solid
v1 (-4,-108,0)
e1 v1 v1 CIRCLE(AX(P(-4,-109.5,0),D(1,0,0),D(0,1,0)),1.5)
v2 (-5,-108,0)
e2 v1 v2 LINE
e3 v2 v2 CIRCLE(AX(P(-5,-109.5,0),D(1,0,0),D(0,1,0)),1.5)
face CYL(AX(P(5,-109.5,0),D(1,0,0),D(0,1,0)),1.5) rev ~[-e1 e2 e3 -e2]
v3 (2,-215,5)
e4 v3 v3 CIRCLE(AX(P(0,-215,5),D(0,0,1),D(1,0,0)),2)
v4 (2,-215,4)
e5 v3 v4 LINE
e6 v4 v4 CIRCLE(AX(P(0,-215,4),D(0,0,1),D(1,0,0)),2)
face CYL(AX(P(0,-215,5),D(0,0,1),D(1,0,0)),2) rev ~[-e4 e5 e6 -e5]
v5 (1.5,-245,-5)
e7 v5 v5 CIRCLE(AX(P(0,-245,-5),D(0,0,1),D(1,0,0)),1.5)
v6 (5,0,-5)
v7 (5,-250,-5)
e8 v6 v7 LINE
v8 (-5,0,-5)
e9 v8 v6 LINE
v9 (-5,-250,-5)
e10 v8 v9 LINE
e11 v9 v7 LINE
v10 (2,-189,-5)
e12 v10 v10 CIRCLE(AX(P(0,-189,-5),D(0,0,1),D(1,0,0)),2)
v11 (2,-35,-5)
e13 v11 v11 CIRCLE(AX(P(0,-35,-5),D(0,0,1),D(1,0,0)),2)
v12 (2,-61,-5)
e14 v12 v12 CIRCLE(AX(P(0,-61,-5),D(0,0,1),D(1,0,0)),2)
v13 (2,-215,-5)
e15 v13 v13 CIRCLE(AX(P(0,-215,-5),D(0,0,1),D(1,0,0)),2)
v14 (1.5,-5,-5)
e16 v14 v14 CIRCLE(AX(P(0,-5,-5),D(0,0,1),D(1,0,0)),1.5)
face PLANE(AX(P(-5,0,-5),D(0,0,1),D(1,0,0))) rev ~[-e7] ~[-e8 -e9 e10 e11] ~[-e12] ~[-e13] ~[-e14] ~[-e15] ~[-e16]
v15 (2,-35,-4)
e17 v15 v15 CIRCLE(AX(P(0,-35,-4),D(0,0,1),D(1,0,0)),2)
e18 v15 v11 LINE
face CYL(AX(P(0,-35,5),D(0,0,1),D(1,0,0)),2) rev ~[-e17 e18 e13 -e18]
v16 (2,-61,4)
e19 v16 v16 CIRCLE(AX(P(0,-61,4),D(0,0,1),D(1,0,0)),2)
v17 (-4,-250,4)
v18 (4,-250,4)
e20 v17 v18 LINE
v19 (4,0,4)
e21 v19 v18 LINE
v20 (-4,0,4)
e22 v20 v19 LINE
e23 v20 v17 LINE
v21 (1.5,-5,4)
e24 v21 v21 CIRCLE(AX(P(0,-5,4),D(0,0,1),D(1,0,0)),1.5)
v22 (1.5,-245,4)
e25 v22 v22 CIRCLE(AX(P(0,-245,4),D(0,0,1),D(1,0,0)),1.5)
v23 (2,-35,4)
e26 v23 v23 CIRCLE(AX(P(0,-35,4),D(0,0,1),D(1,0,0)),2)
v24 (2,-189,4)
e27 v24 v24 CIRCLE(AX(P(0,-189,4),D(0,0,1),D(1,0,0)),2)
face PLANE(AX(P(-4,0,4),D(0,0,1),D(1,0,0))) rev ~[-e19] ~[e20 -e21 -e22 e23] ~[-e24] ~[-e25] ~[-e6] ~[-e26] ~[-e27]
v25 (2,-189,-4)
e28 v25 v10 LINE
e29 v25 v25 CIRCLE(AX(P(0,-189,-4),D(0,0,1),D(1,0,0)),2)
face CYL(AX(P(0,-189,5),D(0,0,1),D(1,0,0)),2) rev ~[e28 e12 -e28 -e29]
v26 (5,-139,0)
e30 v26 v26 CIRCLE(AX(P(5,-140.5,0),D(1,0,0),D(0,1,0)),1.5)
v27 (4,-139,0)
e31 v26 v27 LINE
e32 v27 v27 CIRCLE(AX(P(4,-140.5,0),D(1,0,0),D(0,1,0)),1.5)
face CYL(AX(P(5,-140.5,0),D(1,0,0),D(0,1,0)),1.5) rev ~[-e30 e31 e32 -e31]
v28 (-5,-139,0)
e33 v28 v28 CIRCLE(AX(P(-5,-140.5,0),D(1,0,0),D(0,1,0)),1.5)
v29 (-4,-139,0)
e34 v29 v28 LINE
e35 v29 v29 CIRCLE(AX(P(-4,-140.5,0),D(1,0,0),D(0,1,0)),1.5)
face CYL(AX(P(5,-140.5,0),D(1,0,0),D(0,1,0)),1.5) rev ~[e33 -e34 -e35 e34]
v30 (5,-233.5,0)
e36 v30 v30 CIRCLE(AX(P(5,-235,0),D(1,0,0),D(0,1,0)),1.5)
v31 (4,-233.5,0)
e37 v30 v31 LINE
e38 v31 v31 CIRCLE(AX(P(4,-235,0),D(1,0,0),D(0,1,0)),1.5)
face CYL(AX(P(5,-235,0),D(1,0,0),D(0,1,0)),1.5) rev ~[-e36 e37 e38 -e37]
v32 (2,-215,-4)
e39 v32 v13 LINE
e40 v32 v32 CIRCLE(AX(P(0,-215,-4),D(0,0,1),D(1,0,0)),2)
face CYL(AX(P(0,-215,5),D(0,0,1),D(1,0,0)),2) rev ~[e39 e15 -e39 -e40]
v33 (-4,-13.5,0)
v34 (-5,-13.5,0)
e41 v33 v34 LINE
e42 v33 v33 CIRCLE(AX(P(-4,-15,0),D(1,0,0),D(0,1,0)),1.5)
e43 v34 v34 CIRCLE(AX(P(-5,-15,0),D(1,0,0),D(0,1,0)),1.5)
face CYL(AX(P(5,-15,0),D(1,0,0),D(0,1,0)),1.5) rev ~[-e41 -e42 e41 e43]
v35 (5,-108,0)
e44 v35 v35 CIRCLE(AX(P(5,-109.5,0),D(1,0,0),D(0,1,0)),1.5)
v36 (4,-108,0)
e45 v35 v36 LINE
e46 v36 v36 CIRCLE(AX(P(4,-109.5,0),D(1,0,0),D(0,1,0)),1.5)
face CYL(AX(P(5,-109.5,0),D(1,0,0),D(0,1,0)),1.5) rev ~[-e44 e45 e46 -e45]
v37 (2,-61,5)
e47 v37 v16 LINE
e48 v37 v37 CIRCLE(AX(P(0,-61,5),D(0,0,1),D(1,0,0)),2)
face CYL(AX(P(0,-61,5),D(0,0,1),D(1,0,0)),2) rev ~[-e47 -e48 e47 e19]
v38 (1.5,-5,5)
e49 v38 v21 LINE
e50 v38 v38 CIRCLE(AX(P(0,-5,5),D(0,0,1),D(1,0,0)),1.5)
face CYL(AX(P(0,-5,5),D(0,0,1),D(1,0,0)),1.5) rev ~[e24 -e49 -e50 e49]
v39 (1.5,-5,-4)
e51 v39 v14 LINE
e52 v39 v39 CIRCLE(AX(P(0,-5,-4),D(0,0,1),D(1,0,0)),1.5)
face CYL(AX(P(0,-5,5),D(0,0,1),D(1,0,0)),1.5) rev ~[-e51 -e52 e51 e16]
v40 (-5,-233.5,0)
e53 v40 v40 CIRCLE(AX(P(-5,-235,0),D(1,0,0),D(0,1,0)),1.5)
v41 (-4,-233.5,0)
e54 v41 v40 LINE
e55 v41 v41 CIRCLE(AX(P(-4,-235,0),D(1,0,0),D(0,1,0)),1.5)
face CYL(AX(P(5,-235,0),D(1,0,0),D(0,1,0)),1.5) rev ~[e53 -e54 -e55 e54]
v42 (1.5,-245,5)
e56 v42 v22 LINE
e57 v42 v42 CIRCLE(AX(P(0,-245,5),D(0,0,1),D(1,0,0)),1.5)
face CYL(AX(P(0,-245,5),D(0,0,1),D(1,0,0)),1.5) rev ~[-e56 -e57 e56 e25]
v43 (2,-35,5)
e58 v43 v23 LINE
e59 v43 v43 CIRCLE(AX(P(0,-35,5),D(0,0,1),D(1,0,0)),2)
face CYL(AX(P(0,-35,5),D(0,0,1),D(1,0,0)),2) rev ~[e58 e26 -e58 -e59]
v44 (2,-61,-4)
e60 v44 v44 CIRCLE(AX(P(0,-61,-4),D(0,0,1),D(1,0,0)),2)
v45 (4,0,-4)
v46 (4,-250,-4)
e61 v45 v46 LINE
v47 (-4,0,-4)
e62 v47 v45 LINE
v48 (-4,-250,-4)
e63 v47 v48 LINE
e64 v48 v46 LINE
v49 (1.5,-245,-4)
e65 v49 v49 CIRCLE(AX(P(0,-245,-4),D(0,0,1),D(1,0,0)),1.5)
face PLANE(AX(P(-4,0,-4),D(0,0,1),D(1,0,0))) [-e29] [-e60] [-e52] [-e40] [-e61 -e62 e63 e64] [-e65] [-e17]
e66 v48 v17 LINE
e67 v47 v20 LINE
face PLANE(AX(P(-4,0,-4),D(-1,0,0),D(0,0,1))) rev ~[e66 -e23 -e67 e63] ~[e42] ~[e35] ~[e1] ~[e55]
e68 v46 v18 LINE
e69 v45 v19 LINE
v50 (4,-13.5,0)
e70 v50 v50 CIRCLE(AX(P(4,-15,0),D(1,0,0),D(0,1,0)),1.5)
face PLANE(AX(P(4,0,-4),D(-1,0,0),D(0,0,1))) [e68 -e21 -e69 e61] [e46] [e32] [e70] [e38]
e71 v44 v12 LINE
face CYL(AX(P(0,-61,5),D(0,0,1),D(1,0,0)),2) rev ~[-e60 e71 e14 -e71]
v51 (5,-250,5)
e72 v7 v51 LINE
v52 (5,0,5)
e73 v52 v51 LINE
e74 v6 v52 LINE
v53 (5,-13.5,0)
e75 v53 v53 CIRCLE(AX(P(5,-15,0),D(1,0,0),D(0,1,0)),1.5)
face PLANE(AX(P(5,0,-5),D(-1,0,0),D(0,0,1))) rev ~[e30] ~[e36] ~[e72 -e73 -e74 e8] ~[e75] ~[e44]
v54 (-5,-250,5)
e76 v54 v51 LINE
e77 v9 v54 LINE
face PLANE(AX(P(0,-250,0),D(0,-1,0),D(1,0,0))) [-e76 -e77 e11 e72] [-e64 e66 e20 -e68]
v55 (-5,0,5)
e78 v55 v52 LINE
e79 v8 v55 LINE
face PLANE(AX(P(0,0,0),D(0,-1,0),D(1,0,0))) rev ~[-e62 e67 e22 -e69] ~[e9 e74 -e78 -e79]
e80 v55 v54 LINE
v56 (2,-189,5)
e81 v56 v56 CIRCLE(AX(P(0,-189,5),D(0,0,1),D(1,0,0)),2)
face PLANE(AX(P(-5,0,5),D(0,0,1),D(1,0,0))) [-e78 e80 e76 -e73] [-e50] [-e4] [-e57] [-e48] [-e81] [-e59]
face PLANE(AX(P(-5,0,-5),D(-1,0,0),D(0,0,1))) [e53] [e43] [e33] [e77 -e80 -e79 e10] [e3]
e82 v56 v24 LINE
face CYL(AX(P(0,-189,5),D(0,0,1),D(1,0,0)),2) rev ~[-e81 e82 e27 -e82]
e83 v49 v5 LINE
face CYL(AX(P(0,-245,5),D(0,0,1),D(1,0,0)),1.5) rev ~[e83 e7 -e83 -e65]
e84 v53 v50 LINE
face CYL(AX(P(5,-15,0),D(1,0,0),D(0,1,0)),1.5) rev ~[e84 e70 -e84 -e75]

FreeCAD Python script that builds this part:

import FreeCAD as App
import Part
import Sketcher
from FreeCAD import Vector
Q = App.Units.Quantity


def add_polygon(sketch, points):
    """Adds a closed chain of lines whose ends are joined by coincident constraints."""
    first, n = sketch.GeometryCount, len(points)
    for a, b in zip(points, points[1:] + points[:1]):
        sketch.addGeometry(Part.LineSegment(App.Vector(*a, 0), App.Vector(*b, 0)), False)
    for i in range(n):
        sketch.addConstraint(Sketcher.Constraint("Coincident", first + i, 2, first + (i + 1) % n, 1))

doc = App.newDocument("Part")
body = doc.addObject("PartDesign::Body", "Body")

sketch1 = body.newObject("Sketcher::SketchObject", "Sketch")
sketch1.AttachmentSupport = (doc.getObject("XZ_Plane"), [""])
sketch1.MapMode = "FlatFace"
add_polygon(sketch1, [(-5, 5), (-5, -5), (5, -5), (5, 5)])
add_polygon(sketch1, [(4, -4), (-4, -4), (-4, 4), (4, 4)])
sketch1.addConstraint(Sketcher.Constraint("Vertical", 0))
sketch1.addConstraint(Sketcher.Constraint("Horizontal", 1))
sketch1.addConstraint(Sketcher.Constraint("Vertical", 2))
sketch1.addConstraint(Sketcher.Constraint("Horizontal", 3))
sketch1.addConstraint(Sketcher.Constraint("Horizontal", 4))
sketch1.addConstraint(Sketcher.Constraint("Vertical", 5))
sketch1.addConstraint(Sketcher.Constraint("Horizontal", 6))
sketch1.addConstraint(Sketcher.Constraint("Vertical", 7))
sketch1.addConstraint(Sketcher.Constraint("Symmetric", 0, 2, 2, 2, -1, 1))
sketch1.addConstraint(Sketcher.Constraint("Symmetric", 4, 2, 6, 2, -1, 1))
sketch1.addConstraint(Sketcher.Constraint("Equal", 3, 0))
sketch1.addConstraint(Sketcher.Constraint("Equal", 6, 5))
sketch1.addConstraint(Sketcher.Constraint("DistanceX", 1, 1, 1, 2, Q("10 mm")))
sketch1.addConstraint(Sketcher.Constraint("DistanceX", 4, 2, 4, 1, Q("8 mm")))
pad1 = body.newObject("PartDesign::Pad", "Pad")
pad1.Profile = sketch1
pad1.Length = 250

sketch2 = body.newObject("Sketcher::SketchObject", "Sketch001")
sketch2.AttachmentSupport = (doc.getObject("YZ_Plane"), [""])
sketch2.MapMode = "FlatFace"
sketch2.AttachmentOffset = App.Placement(Vector(0, 0, 5), App.Rotation())
sketch2.addGeometry(Part.Circle(Vector(-140.5, 0, 0), Vector(0, 0, 1), 1.5), False)
sketch2.addGeometry(Part.Circle(Vector(-235, 0, 0), Vector(0, 0, 1), 1.5), False)
sketch2.addGeometry(Part.Circle(Vector(-15, 0, 0), Vector(0, 0, 1), 1.5), False)
sketch2.addGeometry(Part.Circle(Vector(-109.5, 0, 0), Vector(0, 0, 1), 1.5), False)
sketch2.addConstraint(Sketcher.Constraint("Equal", 0, 1))
sketch2.addConstraint(Sketcher.Constraint("Equal", 1, 2))
sketch2.addConstraint(Sketcher.Constraint("Equal", 2, 3))
sketch2.addConstraint(Sketcher.Constraint("PointOnObject", 0, 3, -1))
sketch2.addConstraint(Sketcher.Constraint("PointOnObject", 1, 3, -1))
sketch2.addConstraint(Sketcher.Constraint("PointOnObject", 2, 3, -1))
sketch2.addConstraint(Sketcher.Constraint("PointOnObject", 3, 3, -1))
sketch2.addConstraint(Sketcher.Constraint("Diameter", 0, Q("3 mm")))
sketch2.addConstraint(Sketcher.Constraint("DistanceX", 1, 3, -1, 1, Q("235 mm")))
sketch2.addConstraint(Sketcher.Constraint("DistanceX", 2, 3, -1, 1, Q("15 mm")))
sketch2.addConstraint(Sketcher.Constraint("DistanceX", 0, 3, 3, 3, Q("31 mm")))
sketch2.addConstraint(Sketcher.Constraint("DistanceX", 0, 3, -1, 1, Q("140.5 mm")))
pocket1 = body.newObject("PartDesign::Pocket", "Pocket")
pocket1.Profile = sketch2
pocket1.Length = 25

sketch3 = body.newObject("Sketcher::SketchObject", "Sketch002")
sketch3.AttachmentSupport = (doc.getObject("XY_Plane"), [""])
sketch3.MapMode = "FlatFace"
sketch3.AttachmentOffset = App.Placement(Vector(0, 0, 5), App.Rotation())
sketch3.addGeometry(Part.Circle(Vector(0, -245, 0), Vector(0, 0, 1), 1.5), False)
sketch3.addGeometry(Part.Circle(Vector(0, -215, 0), Vector(0, 0, 1), 2), False)
sketch3.addGeometry(Part.Circle(Vector(0, -189, 0), Vector(0, 0, 1), 2), False)
sketch3.addGeometry(Part.Circle(Vector(0, -61, 0), Vector(0, 0, 1), 2), False)
sketch3.addGeometry(Part.Circle(Vector(0, -35, 0), Vector(0, 0, 1), 2), False)
sketch3.addGeometry(Part.Circle(Vector(0, -5, 0), Vector(0, 0, 1), 1.5), False)
sketch3.addConstraint(Sketcher.Constraint("Equal", 1, 2))
sketch3.addConstraint(Sketcher.Constraint("Equal", 2, 3))
sketch3.addConstraint(Sketcher.Constraint("Equal", 3, 4))
sketch3.addConstraint(Sketcher.Constraint("Equal", 0, 5))
sketch3.addConstraint(Sketcher.Constraint("PointOnObject", 0, 3, -2))
sketch3.addConstraint(Sketcher.Constraint("PointOnObject", 1, 3, -2))
sketch3.addConstraint(Sketcher.Constraint("PointOnObject", 2, 3, -2))
sketch3.addConstraint(Sketcher.Constraint("PointOnObject", 3, 3, -2))
sketch3.addConstraint(Sketcher.Constraint("PointOnObject", 4, 3, -2))
sketch3.addConstraint(Sketcher.Constraint("PointOnObject", 5, 3, -2))
sketch3.addConstraint(Sketcher.Constraint("Diameter", 0, Q("3 mm")))
sketch3.addConstraint(Sketcher.Constraint("Diameter", 1, Q("4 mm")))
sketch3.addConstraint(Sketcher.Constraint("DistanceY", 0, 3, -1, 1, Q("245 mm")))
sketch3.addConstraint(Sketcher.Constraint("DistanceY", 1, 3, -1, 1, Q("215 mm")))
sketch3.addConstraint(Sketcher.Constraint("DistanceY", 2, 3, -1, 1, Q("189 mm")))
sketch3.addConstraint(Sketcher.Constraint("DistanceY", 3, 3, -1, 1, Q("61 mm")))
sketch3.addConstraint(Sketcher.Constraint("DistanceY", 4, 3, -1, 1, Q("35 mm")))
sketch3.addConstraint(Sketcher.Constraint("DistanceY", 5, 3, -1, 1, Q("5 mm")))
pocket2 = body.newObject("PartDesign::Pocket", "Pocket001")
pocket2.Profile = sketch3
pocket2.Length = 25

doc.recompute()
